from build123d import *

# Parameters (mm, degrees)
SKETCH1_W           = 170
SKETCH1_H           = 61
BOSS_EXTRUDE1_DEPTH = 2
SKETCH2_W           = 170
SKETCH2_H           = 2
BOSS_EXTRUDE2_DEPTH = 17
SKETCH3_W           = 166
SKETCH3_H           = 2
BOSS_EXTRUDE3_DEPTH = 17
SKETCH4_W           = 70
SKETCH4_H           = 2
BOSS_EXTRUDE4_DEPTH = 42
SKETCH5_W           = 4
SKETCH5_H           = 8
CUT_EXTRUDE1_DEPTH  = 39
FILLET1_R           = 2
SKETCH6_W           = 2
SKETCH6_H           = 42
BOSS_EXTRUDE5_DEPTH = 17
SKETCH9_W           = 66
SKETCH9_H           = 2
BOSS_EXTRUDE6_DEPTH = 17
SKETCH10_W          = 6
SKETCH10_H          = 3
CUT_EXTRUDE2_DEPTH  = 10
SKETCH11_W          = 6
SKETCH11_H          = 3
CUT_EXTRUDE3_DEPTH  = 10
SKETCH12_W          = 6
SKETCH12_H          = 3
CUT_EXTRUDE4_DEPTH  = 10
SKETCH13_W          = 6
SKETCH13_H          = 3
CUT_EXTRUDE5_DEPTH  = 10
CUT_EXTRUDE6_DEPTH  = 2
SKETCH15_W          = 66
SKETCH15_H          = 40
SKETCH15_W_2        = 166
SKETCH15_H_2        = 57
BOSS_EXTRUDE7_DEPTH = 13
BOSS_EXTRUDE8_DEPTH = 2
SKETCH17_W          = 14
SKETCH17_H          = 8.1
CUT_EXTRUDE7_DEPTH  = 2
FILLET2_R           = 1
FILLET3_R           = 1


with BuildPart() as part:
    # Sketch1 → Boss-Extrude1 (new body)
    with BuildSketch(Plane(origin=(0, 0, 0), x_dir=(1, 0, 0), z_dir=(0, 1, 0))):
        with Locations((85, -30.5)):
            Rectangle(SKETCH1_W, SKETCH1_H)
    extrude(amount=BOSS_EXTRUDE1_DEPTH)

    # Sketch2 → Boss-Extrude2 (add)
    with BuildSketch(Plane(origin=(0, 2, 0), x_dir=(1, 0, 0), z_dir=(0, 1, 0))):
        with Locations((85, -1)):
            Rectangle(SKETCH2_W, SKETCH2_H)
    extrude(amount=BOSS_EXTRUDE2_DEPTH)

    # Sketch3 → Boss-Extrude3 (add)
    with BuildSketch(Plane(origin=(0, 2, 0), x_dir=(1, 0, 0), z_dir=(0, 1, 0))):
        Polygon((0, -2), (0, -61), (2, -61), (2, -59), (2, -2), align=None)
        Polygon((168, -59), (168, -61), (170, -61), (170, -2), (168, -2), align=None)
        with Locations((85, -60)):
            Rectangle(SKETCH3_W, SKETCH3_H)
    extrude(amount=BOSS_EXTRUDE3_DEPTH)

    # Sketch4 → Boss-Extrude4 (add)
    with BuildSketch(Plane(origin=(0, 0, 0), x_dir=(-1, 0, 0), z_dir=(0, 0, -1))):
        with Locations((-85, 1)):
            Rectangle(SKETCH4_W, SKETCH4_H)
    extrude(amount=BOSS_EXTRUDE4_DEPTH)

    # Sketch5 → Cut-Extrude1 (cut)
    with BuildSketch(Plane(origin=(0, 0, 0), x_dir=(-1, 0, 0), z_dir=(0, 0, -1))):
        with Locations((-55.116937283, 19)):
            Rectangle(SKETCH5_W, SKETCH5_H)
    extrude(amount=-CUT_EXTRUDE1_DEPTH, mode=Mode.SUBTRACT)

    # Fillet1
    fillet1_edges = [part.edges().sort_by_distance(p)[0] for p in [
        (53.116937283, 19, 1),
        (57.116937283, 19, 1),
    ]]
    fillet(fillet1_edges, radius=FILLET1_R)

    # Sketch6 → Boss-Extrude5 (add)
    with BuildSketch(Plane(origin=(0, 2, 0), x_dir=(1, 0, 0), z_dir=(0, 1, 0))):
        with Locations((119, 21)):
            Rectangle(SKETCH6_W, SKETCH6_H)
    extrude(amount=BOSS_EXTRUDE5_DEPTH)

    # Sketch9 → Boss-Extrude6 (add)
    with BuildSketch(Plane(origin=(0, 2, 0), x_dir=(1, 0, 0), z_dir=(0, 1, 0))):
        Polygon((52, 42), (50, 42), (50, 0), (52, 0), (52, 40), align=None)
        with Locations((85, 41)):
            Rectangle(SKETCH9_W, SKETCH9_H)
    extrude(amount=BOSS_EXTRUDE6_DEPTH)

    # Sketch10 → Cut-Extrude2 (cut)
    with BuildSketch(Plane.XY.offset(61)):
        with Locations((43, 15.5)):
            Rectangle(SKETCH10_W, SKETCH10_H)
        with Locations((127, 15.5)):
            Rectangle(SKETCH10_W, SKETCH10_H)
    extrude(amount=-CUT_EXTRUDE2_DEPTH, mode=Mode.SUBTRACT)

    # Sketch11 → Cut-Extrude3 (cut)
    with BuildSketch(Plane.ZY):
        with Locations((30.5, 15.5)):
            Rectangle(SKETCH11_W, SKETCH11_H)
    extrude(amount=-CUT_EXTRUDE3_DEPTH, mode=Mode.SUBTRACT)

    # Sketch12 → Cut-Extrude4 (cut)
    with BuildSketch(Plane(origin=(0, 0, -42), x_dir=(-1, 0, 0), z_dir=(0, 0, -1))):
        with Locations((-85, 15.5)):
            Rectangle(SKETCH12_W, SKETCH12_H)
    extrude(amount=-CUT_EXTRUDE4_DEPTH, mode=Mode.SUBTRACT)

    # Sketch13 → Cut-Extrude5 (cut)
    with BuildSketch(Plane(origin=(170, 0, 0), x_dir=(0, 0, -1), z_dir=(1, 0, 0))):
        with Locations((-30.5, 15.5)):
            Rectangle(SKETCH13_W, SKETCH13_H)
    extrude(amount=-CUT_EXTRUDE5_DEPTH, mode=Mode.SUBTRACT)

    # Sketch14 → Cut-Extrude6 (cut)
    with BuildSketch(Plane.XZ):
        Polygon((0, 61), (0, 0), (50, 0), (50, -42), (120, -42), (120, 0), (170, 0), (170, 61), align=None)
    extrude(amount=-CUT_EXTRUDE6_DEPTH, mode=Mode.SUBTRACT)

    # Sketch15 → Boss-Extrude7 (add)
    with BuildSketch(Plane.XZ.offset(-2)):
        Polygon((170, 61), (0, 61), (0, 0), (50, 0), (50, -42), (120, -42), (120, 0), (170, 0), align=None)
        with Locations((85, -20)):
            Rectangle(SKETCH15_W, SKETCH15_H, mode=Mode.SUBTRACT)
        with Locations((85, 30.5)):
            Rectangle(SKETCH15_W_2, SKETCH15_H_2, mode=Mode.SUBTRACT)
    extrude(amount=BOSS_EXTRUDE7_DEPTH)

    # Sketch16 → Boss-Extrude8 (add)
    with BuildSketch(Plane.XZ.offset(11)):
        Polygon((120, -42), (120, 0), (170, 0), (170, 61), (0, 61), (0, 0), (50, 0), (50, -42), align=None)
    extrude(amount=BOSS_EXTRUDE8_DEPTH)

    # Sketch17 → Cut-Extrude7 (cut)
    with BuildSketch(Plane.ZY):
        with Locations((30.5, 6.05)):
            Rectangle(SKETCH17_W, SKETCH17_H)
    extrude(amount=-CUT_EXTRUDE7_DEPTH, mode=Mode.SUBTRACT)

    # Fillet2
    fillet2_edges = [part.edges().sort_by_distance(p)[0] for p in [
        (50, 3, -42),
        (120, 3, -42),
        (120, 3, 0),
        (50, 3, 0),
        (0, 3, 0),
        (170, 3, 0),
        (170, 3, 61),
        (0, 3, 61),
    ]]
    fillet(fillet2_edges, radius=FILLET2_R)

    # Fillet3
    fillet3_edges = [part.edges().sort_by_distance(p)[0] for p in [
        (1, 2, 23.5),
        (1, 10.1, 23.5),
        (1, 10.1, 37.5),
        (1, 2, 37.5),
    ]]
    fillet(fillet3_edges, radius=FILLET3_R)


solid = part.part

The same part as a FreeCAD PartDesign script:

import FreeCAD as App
import Part
import Sketcher
Q = App.Units.Quantity


def edges_at(feature, points):
    """Names of the edges that pass closest to the given points."""
    edges = feature.Shape.Edges
    near = lambda p: min(range(len(edges)), key=lambda i: edges[i].distToShape(Part.Vertex(*p))[0])
    return sorted({f"Edge{near(p) + 1}" for p in points})

doc = App.newDocument("Part")
body = doc.addObject("PartDesign::Body", "Body")

# Sketch on XZ plane
sketch1 = body.newObject("Sketcher::SketchObject", "Sketch")
sketch1.AttachmentSupport = (doc.getObject("XZ_Plane"), [""])
sketch1.MapMode = "FlatFace"
sketch1.addGeometry([
    Part.LineSegment(App.Vector(0, 0, 0), App.Vector(0, 61, 0)),
    Part.LineSegment(App.Vector(0, 61, 0), App.Vector(170, 61, 0)),
    Part.LineSegment(App.Vector(170, 61, 0), App.Vector(170, 0, 0)),
    Part.LineSegment(App.Vector(170, 0, 0), App.Vector(0, 0, 0)),
], False)
sketch1.addConstraint([
    Sketcher.Constraint("Coincident", 0, 2, 1, 1),
    Sketcher.Constraint("Coincident", 1, 2, 2, 1),
    Sketcher.Constraint("Coincident", 2, 2, 3, 1),
    Sketcher.Constraint("Coincident", 3, 2, 0, 1),
    Sketcher.Constraint("Vertical", 0),
    Sketcher.Constraint("Horizontal", 1),
    Sketcher.Constraint("Vertical", 2),
    Sketcher.Constraint("Horizontal", 3),
    Sketcher.Constraint("Coincident", 3, 2, -1, 1),
    Sketcher.Constraint("DistanceX", 1, 1, 1, 2, Q("170 mm")),
    Sketcher.Constraint("DistanceY", 0, 1, 0, 2, Q("61 mm")),
])
pad1 = body.newObject("PartDesign::Pad", "Pad")
pad1.Profile = sketch1
pad1.Length = 2
pad1.Reversed = True

# Sketch on XZ plane
sketch2 = body.newObject("Sketcher::SketchObject", "Sketch001")
sketch2.AttachmentSupport = (doc.getObject("XZ_Plane"), [""])
sketch2.MapMode = "FlatFace"
sketch2.AttachmentOffset = App.Placement(App.Vector(0, 0, -2), App.Rotation())
sketch2.addGeometry([
    Part.LineSegment(App.Vector(0, 0, 0), App.Vector(0, 2, 0)),
    Part.LineSegment(App.Vector(0, 2, 0), App.Vector(170, 2, 0)),
    Part.LineSegment(App.Vector(170, 2, 0), App.Vector(170, 0, 0)),
    Part.LineSegment(App.Vector(170, 0, 0), App.Vector(0, 0, 0)),
], False)
sketch2.addConstraint([
    Sketcher.Constraint("Coincident", 0, 2, 1, 1),
    Sketcher.Constraint("Coincident", 1, 2, 2, 1),
    Sketcher.Constraint("Coincident", 2, 2, 3, 1),
    Sketcher.Constraint("Coincident", 3, 2, 0, 1),
    Sketcher.Constraint("Vertical", 0),
    Sketcher.Constraint("Horizontal", 1),
    Sketcher.Constraint("Vertical", 2),
    Sketcher.Constraint("Horizontal", 3),
    Sketcher.Constraint("Coincident", 3, 2, -1, 1),
    Sketcher.Constraint("DistanceX", 1, 1, 1, 2, Q("170 mm")),
    Sketcher.Constraint("DistanceY", 0, 1, 0, 2, Q("2 mm")),
])
pad2 = body.newObject("PartDesign::Pad", "Pad001")
pad2.Profile = sketch2
pad2.Length = 17
pad2.Reversed = True

# Sketch on XZ plane
sketch3 = body.newObject("Sketcher::SketchObject", "Sketch002")
sketch3.AttachmentSupport = (doc.getObject("XZ_Plane"), [""])
sketch3.MapMode = "FlatFace"
sketch3.AttachmentOffset = App.Placement(App.Vector(0, 0, -2), App.Rotation())
sketch3.addGeometry([
    Part.LineSegment(App.Vector(0, 2, 0), App.Vector(0, 61, 0)),  # 0
    Part.LineSegment(App.Vector(0, 61, 0), App.Vector(170, 61, 0)),  # 1
    Part.LineSegment(App.Vector(170, 61, 0), App.Vector(170, 2, 0)),  # 2
    Part.LineSegment(App.Vector(170, 2, 0), App.Vector(168, 2, 0)),  # 3
    Part.LineSegment(App.Vector(168, 2, 0), App.Vector(168, 59, 0)),  # 4
    Part.LineSegment(App.Vector(168, 59, 0), App.Vector(2, 59, 0)),  # 5
    Part.LineSegment(App.Vector(2, 59, 0), App.Vector(2, 2, 0)),  # 6
    Part.LineSegment(App.Vector(2, 2, 0), App.Vector(0, 2, 0)),  # 7
], False)
sketch3.addConstraint([
    Sketcher.Constraint("Coincident", 0, 2, 1, 1),
    Sketcher.Constraint("Coincident", 1, 2, 2, 1),
    Sketcher.Constraint("Coincident", 2, 2, 3, 1),
    Sketcher.Constraint("Coincident", 3, 2, 4, 1),
    Sketcher.Constraint("Coincident", 4, 2, 5, 1),
    Sketcher.Constraint("Coincident", 5, 2, 6, 1),
    Sketcher.Constraint("Coincident", 6, 2, 7, 1),
    Sketcher.Constraint("Coincident", 7, 2, 0, 1),
    Sketcher.Constraint("Vertical", 0),
    Sketcher.Constraint("Horizontal", 1),
    Sketcher.Constraint("Vertical", 2),
    Sketcher.Constraint("Horizontal", 3),
    Sketcher.Constraint("Vertical", 4),
    Sketcher.Constraint("Horizontal", 5),
    Sketcher.Constraint("Vertical", 6),
    Sketcher.Constraint("Horizontal", 7),
    Sketcher.Constraint("PointOnObject", 0, 2, -2),
    Sketcher.Constraint("Horizontal", 3, 2, 6, 2),
    Sketcher.Constraint("Equal", 3, 7),
    Sketcher.Constraint("DistanceX", 1, 1, 1, 2, Q("170 mm")),
    Sketcher.Constraint("DistanceX", 3, 2, 3, 1, Q("2 mm")),
    Sketcher.Constraint("DistanceY", 0, 1, 0, 2, Q("59 mm")),
    Sketcher.Constraint("DistanceY", 4, 1, 4, 2, Q("57 mm")),
    Sketcher.Constraint("DistanceY", -1, 1, 0, 2, Q("61 mm")),
])
pad3 = body.newObject("PartDesign::Pad", "Pad002")
pad3.Profile = sketch3
pad3.Length = 17
pad3.Reversed = True

# Sketch on XY plane
sketch4 = body.newObject("Sketcher::SketchObject", "Sketch003")
sketch4.AttachmentSupport = (doc.getObject("XY_Plane"), [""])
sketch4.MapMode = "FlatFace"
sketch4.addGeometry([
    Part.LineSegment(App.Vector(120, 2, 0), App.Vector(120, 0, 0)),
    Part.LineSegment(App.Vector(120, 0, 0), App.Vector(50, 0, 0)),
    Part.LineSegment(App.Vector(50, 0, 0), App.Vector(50, 2, 0)),
    Part.LineSegment(App.Vector(50, 2, 0), App.Vector(120, 2, 0)),
], False)
sketch4.addConstraint([
    Sketcher.Constraint("Coincident", 0, 2, 1, 1),
    Sketcher.Constraint("Coincident", 1, 2, 2, 1),
    Sketcher.Constraint("Coincident", 2, 2, 3, 1),
    Sketcher.Constraint("Coincident", 3, 2, 0, 1),
    Sketcher.Constraint("Vertical", 0),
    Sketcher.Constraint("Horizontal", 1),
    Sketcher.Constraint("Vertical", 2),
    Sketcher.Constraint("Horizontal", 3),
    Sketcher.Constraint("PointOnObject", 0, 2, -1),
    Sketcher.Constraint("DistanceX", 1, 2, 1, 1, Q("70 mm")),
    Sketcher.Constraint("DistanceY", 0, 2, 0, 1, Q("2 mm")),
    Sketcher.Constraint("DistanceX", -1, 1, 0, 2, Q("120 mm")),
])
pad4 = body.newObject("PartDesign::Pad", "Pad003")
pad4.Profile = sketch4
pad4.Length = 42
pad4.Reversed = True

# Sketch on XY plane
sketch5 = body.newObject("Sketcher::SketchObject", "Sketch004")
sketch5.AttachmentSupport = (doc.getObject("XY_Plane"), [""])
sketch5.MapMode = "FlatFace"
sketch5.addGeometry([
    Part.LineSegment(App.Vector(57.116937, 23, 0), App.Vector(57.116937, 15, 0)),
    Part.LineSegment(App.Vector(57.116937, 15, 0), App.Vector(53.116937, 15, 0)),
    Part.LineSegment(App.Vector(53.116937, 15, 0), App.Vector(53.116937, 23, 0)),
    Part.LineSegment(App.Vector(53.116937, 23, 0), App.Vector(57.116937, 23, 0)),
], False)
sketch5.addConstraint([
    Sketcher.Constraint("Coincident", 0, 2, 1, 1),
    Sketcher.Constraint("Coincident", 1, 2, 2, 1),
    Sketcher.Constraint("Coincident", 2, 2, 3, 1),
    Sketcher.Constraint("Coincident", 3, 2, 0, 1),
    Sketcher.Constraint("Vertical", 0),
    Sketcher.Constraint("Horizontal", 1),
    Sketcher.Constraint("Vertical", 2),
    Sketcher.Constraint("Horizontal", 3),
    Sketcher.Constraint("DistanceX", 1, 2, 1, 1, Q("4 mm")),
    Sketcher.Constraint("DistanceY", 0, 2, 0, 1, Q("8 mm")),
    Sketcher.Constraint("DistanceY", -1, 1, 0, 2, Q("15 mm")),
    Sketcher.Constraint("DistanceX", -1, 1, 0, 2, Q("57.116937 mm")),
])
pocket1 = body.newObject("PartDesign::Pocket", "Pocket")
pocket1.Profile = sketch5
pocket1.Length = 39
pocket1.Reversed = True
doc.recompute()

fillet = body.newObject("PartDesign::Fillet", "Fillet")
fillet.Base = (pocket1, edges_at(pocket1, [(53.117, 19, 1), (57.117, 19, 1)]))
fillet.Radius = 2

# Sketch on XZ plane
sketch6 = body.newObject("Sketcher::SketchObject", "Sketch005")
sketch6.AttachmentSupport = (doc.getObject("XZ_Plane"), [""])
sketch6.MapMode = "FlatFace"
sketch6.AttachmentOffset = App.Placement(App.Vector(0, 0, -2), App.Rotation())
sketch6.addGeometry([
    Part.LineSegment(App.Vector(118, -42, 0), App.Vector(118, 0, 0)),
    Part.LineSegment(App.Vector(118, 0, 0), App.Vector(120, 0, 0)),
    Part.LineSegment(App.Vector(120, 0, 0), App.Vector(120, -42, 0)),
    Part.LineSegment(App.Vector(120, -42, 0), App.Vector(118, -42, 0)),
], False)
sketch6.addConstraint([
    Sketcher.Constraint("Coincident", 0, 2, 1, 1),
    Sketcher.Constraint("Coincident", 1, 2, 2, 1),
    Sketcher.Constraint("Coincident", 2, 2, 3, 1),
    Sketcher.Constraint("Coincident", 3, 2, 0, 1),
    Sketcher.Constraint("Vertical", 0),
    Sketcher.Constraint("Horizontal", 1),
    Sketcher.Constraint("Vertical", 2),
    Sketcher.Constraint("Horizontal", 3),
    Sketcher.Constraint("PointOnObject", 0, 2, -1),
    Sketcher.Constraint("DistanceX", 1, 1, 1, 2, Q("2 mm")),
    Sketcher.Constraint("DistanceY", 0, 1, 0, 2, Q("42 mm")),
    Sketcher.Constraint("DistanceX", -1, 1, 0, 2, Q("118 mm")),
])
pad5 = body.newObject("PartDesign::Pad", "Pad004")
pad5.Profile = sketch6
pad5.Length = 17
pad5.Reversed = True

# Sketch on XZ plane
sketch7 = body.newObject("Sketcher::SketchObject", "Sketch006")
sketch7.AttachmentSupport = (doc.getObject("XZ_Plane"), [""])
sketch7.MapMode = "FlatFace"
sketch7.AttachmentOffset = App.Placement(App.Vector(0, 0, -2), App.Rotation())
sketch7.addGeometry([
    Part.LineSegment(App.Vector(50, -42, 0), App.Vector(50, 0, 0)),  # 0
    Part.LineSegment(App.Vector(50, 0, 0), App.Vector(52, 0, 0)),  # 1
    Part.LineSegment(App.Vector(52, 0, 0), App.Vector(52, -40, 0)),  # 2
    Part.LineSegment(App.Vector(52, -40, 0), App.Vector(118, -40, 0)),  # 3
    Part.LineSegment(App.Vector(118, -40, 0), App.Vector(118, -42, 0)),  # 4
    Part.LineSegment(App.Vector(118, -42, 0), App.Vector(50, -42, 0)),  # 5
], False)
sketch7.addConstraint([
    Sketcher.Constraint("Coincident", 0, 2, 1, 1),
    Sketcher.Constraint("Coincident", 1, 2, 2, 1),
    Sketcher.Constraint("Coincident", 2, 2, 3, 1),
    Sketcher.Constraint("Coincident", 3, 2, 4, 1),
    Sketcher.Constraint("Coincident", 4, 2, 5, 1),
    Sketcher.Constraint("Coincident", 5, 2, 0, 1),
    Sketcher.Constraint("Vertical", 0),
    Sketcher.Constraint("Horizontal", 1),
    Sketcher.Constraint("Vertical", 2),
    Sketcher.Constraint("Horizontal", 3),
    Sketcher.Constraint("Vertical", 4),
    Sketcher.Constraint("Horizontal", 5),
    Sketcher.Constraint("PointOnObject", 0, 2, -1),
    Sketcher.Constraint("Equal", 1, 4),
    Sketcher.Constraint("DistanceX", 1, 1, 1, 2, Q("2 mm")),
    Sketcher.Constraint("DistanceX", 3, 1, 3, 2, Q("66 mm")),
    Sketcher.Constraint("DistanceY", 0, 1, 0, 2, Q("42 mm")),
    Sketcher.Constraint("DistanceX", -1, 1, 0, 2, Q("50 mm")),
])
pad6 = body.newObject("PartDesign::Pad", "Pad005")
pad6.Profile = sketch7
pad6.Length = 17
pad6.Reversed = True

# Sketch on XY plane
sketch8 = body.newObject("Sketcher::SketchObject", "Sketch007")
sketch8.AttachmentSupport = (doc.getObject("XY_Plane"), [""])
sketch8.MapMode = "FlatFace"
sketch8.AttachmentOffset = App.Placement(App.Vector(0, 0, 61), App.Rotation())
sketch8.addGeometry([
    Part.LineSegment(App.Vector(40, 17, 0), App.Vector(40, 14, 0)),  # 0
    Part.LineSegment(App.Vector(40, 14, 0), App.Vector(46, 14, 0)),  # 1
    Part.LineSegment(App.Vector(46, 14, 0), App.Vector(46, 17, 0)),  # 2
    Part.LineSegment(App.Vector(46, 17, 0), App.Vector(40, 17, 0)),  # 3
    Part.LineSegment(App.Vector(124, 17, 0), App.Vector(124, 14, 0)),  # 4
    Part.LineSegment(App.Vector(124, 14, 0), App.Vector(130, 14, 0)),  # 5
    Part.LineSegment(App.Vector(130, 14, 0), App.Vector(130, 17, 0)),  # 6
    Part.LineSegment(App.Vector(130, 17, 0), App.Vector(124, 17, 0)),  # 7
], False)
sketch8.addConstraint([
    Sketcher.Constraint("Coincident", 0, 2, 1, 1),
    Sketcher.Constraint("Coincident", 1, 2, 2, 1),
    Sketcher.Constraint("Coincident", 2, 2, 3, 1),
    Sketcher.Constraint("Coincident", 3, 2, 0, 1),
    Sketcher.Constraint("Coincident", 4, 2, 5, 1),
    Sketcher.Constraint("Coincident", 5, 2, 6, 1),
    Sketcher.Constraint("Coincident", 6, 2, 7, 1),
    Sketcher.Constraint("Coincident", 7, 2, 4, 1),
    Sketcher.Constraint("Vertical", 0),
    Sketcher.Constraint("Horizontal", 1),
    Sketcher.Constraint("Vertical", 2),
    Sketcher.Constraint("Horizontal", 3),
    Sketcher.Constraint("Vertical", 4),
    Sketcher.Constraint("Horizontal", 5),
    Sketcher.Constraint("Vertical", 6),
    Sketcher.Constraint("Horizontal", 7),
    Sketcher.Constraint("Horizontal", 1, 2, 4, 2),
    Sketcher.Constraint("Horizontal", 3, 2, 6, 2),
    Sketcher.Constraint("Equal", 3, 5),
    Sketcher.Constraint("DistanceX", 1, 1, 1, 2, Q("6 mm")),
    Sketcher.Constraint("DistanceY", 0, 2, 0, 1, Q("3 mm")),
    Sketcher.Constraint("DistanceX", -1, 1, 0, 2, Q("40 mm")),
    Sketcher.Constraint("DistanceY", -1, 1, 0, 2, Q("14 mm")),
    Sketcher.Constraint("DistanceX", -1, 1, 4, 2, Q("124 mm")),
])
pocket2 = body.newObject("PartDesign::Pocket", "Pocket001")
pocket2.Profile = sketch8
pocket2.Length = 10

# Sketch on YZ plane
sketch9 = body.newObject("Sketcher::SketchObject", "Sketch008")
sketch9.AttachmentSupport = (doc.getObject("YZ_Plane"), [""])
sketch9.MapMode = "FlatFace"
sketch9.addGeometry([
    Part.LineSegment(App.Vector(17, 27.5, 0), App.Vector(14, 27.5, 0)),
    Part.LineSegment(App.Vector(14, 27.5, 0), App.Vector(14, 33.5, 0)),
    Part.LineSegment(App.Vector(14, 33.5, 0), App.Vector(17, 33.5, 0)),
    Part.LineSegment(App.Vector(17, 33.5, 0), App.Vector(17, 27.5, 0)),
], False)
sketch9.addConstraint([
    Sketcher.Constraint("Coincident", 0, 2, 1, 1),
    Sketcher.Constraint("Coincident", 1, 2, 2, 1),
    Sketcher.Constraint("Coincident", 2, 2, 3, 1),
    Sketcher.Constraint("Coincident", 3, 2, 0, 1),
    Sketcher.Constraint("Horizontal", 0),
    Sketcher.Constraint("Vertical", 1),
    Sketcher.Constraint("Horizontal", 2),
    Sketcher.Constraint("Vertical", 3),
    Sketcher.Constraint("DistanceX", 0, 2, 0, 1, Q("3 mm")),
    Sketcher.Constraint("DistanceY", 1, 1, 1, 2, Q("6 mm")),
    Sketcher.Constraint("DistanceX", -1, 1, 0, 2, Q("14 mm")),
    Sketcher.Constraint("DistanceY", -1, 1, 0, 2, Q("27.5 mm")),
])
pocket3 = body.newObject("PartDesign::Pocket", "Pocket002")
pocket3.Profile = sketch9
pocket3.Length = 10
pocket3.Reversed = True

# Sketch on XY plane
sketch10 = body.newObject("Sketcher::SketchObject", "Sketch009")
sketch10.AttachmentSupport = (doc.getObject("XY_Plane"), [""])
sketch10.MapMode = "FlatFace"
sketch10.AttachmentOffset = App.Placement(App.Vector(0, 0, -42), App.Rotation())
sketch10.addGeometry([
    Part.LineSegment(App.Vector(88, 17, 0), App.Vector(88, 14, 0)),
    Part.LineSegment(App.Vector(88, 14, 0), App.Vector(82, 14, 0)),
    Part.LineSegment(App.Vector(82, 14, 0), App.Vector(82, 17, 0)),
    Part.LineSegment(App.Vector(82, 17, 0), App.Vector(88, 17, 0)),
], False)
sketch10.addConstraint([
    Sketcher.Constraint("Coincident", 0, 2, 1, 1),
    Sketcher.Constraint("Coincident", 1, 2, 2, 1),
    Sketcher.Constraint("Coincident", 2, 2, 3, 1),
    Sketcher.Constraint("Coincident", 3, 2, 0, 1),
    Sketcher.Constraint("Vertical", 0),
    Sketcher.Constraint("Horizontal", 1),
    Sketcher.Constraint("Vertical", 2),
    Sketcher.Constraint("Horizontal", 3),
    Sketcher.Constraint("DistanceX", 1, 2, 1, 1, Q("6 mm")),
    Sketcher.Constraint("DistanceY", 0, 2, 0, 1, Q("3 mm")),
    Sketcher.Constraint("DistanceX", -1, 1, 0, 2, Q("88 mm")),
    Sketcher.Constraint("DistanceY", -1, 1, 0, 2, Q("14 mm")),
])
pocket4 = body.newObject("PartDesign::Pocket", "Pocket003")
pocket4.Profile = sketch10
pocket4.Length = 10
pocket4.Reversed = True

# Sketch on YZ plane
sketch11 = body.newObject("Sketcher::SketchObject", "Sketch010")
sketch11.AttachmentSupport = (doc.getObject("YZ_Plane"), [""])
sketch11.MapMode = "FlatFace"
sketch11.AttachmentOffset = App.Placement(App.Vector(0, 0, 170), App.Rotation())
sketch11.addGeometry([
    Part.LineSegment(App.Vector(17, 33.5, 0), App.Vector(14, 33.5, 0)),
    Part.LineSegment(App.Vector(14, 33.5, 0), App.Vector(14, 27.5, 0)),
    Part.LineSegment(App.Vector(14, 27.5, 0), App.Vector(17, 27.5, 0)),
    Part.LineSegment(App.Vector(17, 27.5, 0), App.Vector(17, 33.5, 0)),
], False)
sketch11.addConstraint([
    Sketcher.Constraint("Coincident", 0, 2, 1, 1),
    Sketcher.Constraint("Coincident", 1, 2, 2, 1),
    Sketcher.Constraint("Coincident", 2, 2, 3, 1),
    Sketcher.Constraint("Coincident", 3, 2, 0, 1),
    Sketcher.Constraint("Horizontal", 0),
    Sketcher.Constraint("Vertical", 1),
    Sketcher.Constraint("Horizontal", 2),
    Sketcher.Constraint("Vertical", 3),
    Sketcher.Constraint("DistanceX", 0, 2, 0, 1, Q("3 mm")),
    Sketcher.Constraint("DistanceY", 1, 2, 1, 1, Q("6 mm")),
    Sketcher.Constraint("DistanceX", -1, 1, 0, 2, Q("14 mm")),
    Sketcher.Constraint("DistanceY", -1, 1, 0, 2, Q("33.5 mm")),
])
pocket5 = body.newObject("PartDesign::Pocket", "Pocket004")
pocket5.Profile = sketch11
pocket5.Length = 10

# Sketch on XZ plane
sketch12 = body.newObject("Sketcher::SketchObject", "Sketch011")
sketch12.AttachmentSupport = (doc.getObject("XZ_Plane"), [""])
sketch12.MapMode = "FlatFace"
sketch12.addGeometry([
    Part.LineSegment(App.Vector(0, 61, 0), App.Vector(0, 0, 0)),  # 0
    Part.LineSegment(App.Vector(0, 0, 0), App.Vector(50, 0, 0)),  # 1
    Part.LineSegment(App.Vector(50, 0, 0), App.Vector(50, -42, 0)),  # 2
    Part.LineSegment(App.Vector(50, -42, 0), App.Vector(120, -42, 0)),  # 3
    Part.LineSegment(App.Vector(120, -42, 0), App.Vector(120, 0, 0)),  # 4
    Part.LineSegment(App.Vector(120, 0, 0), App.Vector(170, 0, 0)),  # 5
    Part.LineSegment(App.Vector(170, 0, 0), App.Vector(170, 61, 0)),  # 6
    Part.LineSegment(App.Vector(170, 61, 0), App.Vector(0, 61, 0)),  # 7
], False)
sketch12.addConstraint([
    Sketcher.Constraint("Coincident", 0, 2, 1, 1),
    Sketcher.Constraint("Coincident", 1, 2, 2, 1),
    Sketcher.Constraint("Coincident", 2, 2, 3, 1),
    Sketcher.Constraint("Coincident", 3, 2, 4, 1),
    Sketcher.Constraint("Coincident", 4, 2, 5, 1),
    Sketcher.Constraint("Coincident", 5, 2, 6, 1),
    Sketcher.Constraint("Coincident", 6, 2, 7, 1),
    Sketcher.Constraint("Coincident", 7, 2, 0, 1),
    Sketcher.Constraint("Vertical", 0),
    Sketcher.Constraint("Horizontal", 1),
    Sketcher.Constraint("Vertical", 2),
    Sketcher.Constraint("Horizontal", 3),
    Sketcher.Constraint("Vertical", 4),
    Sketcher.Constraint("Horizontal", 5),
    Sketcher.Constraint("Vertical", 6),
    Sketcher.Constraint("Horizontal", 7),
    Sketcher.Constraint("Coincident", 0, 2, -1, 1),
    Sketcher.Constraint("PointOnObject", 4, 2, -1),
    Sketcher.Constraint("Equal", 1, 5),
    Sketcher.Constraint("DistanceX", 1, 1, 1, 2, Q("50 mm")),
    Sketcher.Constraint("DistanceX", 3, 1, 3, 2, Q("70 mm")),
    Sketcher.Constraint("DistanceY", 0, 2, 0, 1, Q("61 mm")),
    Sketcher.Constraint("DistanceY", 2, 2, 2, 1, Q("42 mm")),
])
pocket6 = body.newObject("PartDesign::Pocket", "Pocket005")
pocket6.Profile = sketch12
pocket6.Length = 2

# Sketch on XZ plane
sketch13 = body.newObject("Sketcher::SketchObject", "Sketch012")
sketch13.AttachmentSupport = (doc.getObject("XZ_Plane"), [""])
sketch13.MapMode = "FlatFace"
sketch13.AttachmentOffset = App.Placement(App.Vector(0, 0, -2), App.Rotation())
sketch13.addGeometry([
    Part.LineSegment(App.Vector(170, 61, 0), App.Vector(0, 61, 0)),  # 0
    Part.LineSegment(App.Vector(0, 61, 0), App.Vector(0, 0, 0)),  # 1
    Part.LineSegment(App.Vector(0, 0, 0), App.Vector(50, 0, 0)),  # 2
    Part.LineSegment(App.Vector(50, 0, 0), App.Vector(50, -42, 0)),  # 3
    Part.LineSegment(App.Vector(50, -42, 0), App.Vector(120, -42, 0)),  # 4
    Part.LineSegment(App.Vector(120, -42, 0), App.Vector(120, 0, 0)),  # 5
    Part.LineSegment(App.Vector(120, 0, 0), App.Vector(170, 0, 0)),  # 6
    Part.LineSegment(App.Vector(170, 0, 0), App.Vector(170, 61, 0)),  # 7
    Part.LineSegment(App.Vector(118, -40, 0), App.Vector(52, -40, 0)),  # 8
    Part.LineSegment(App.Vector(52, -40, 0), App.Vector(52, 0, 0)),  # 9
    Part.LineSegment(App.Vector(52, 0, 0), App.Vector(118, 0, 0)),  # 10
    Part.LineSegment(App.Vector(118, 0, 0), App.Vector(118, -40, 0)),  # 11
    Part.LineSegment(App.Vector(168, 2, 0), App.Vector(2, 2, 0)),  # 12
    Part.LineSegment(App.Vector(2, 2, 0), App.Vector(2, 59, 0)),  # 13
    Part.LineSegment(App.Vector(2, 59, 0), App.Vector(168, 59, 0)),  # 14
    Part.LineSegment(App.Vector(168, 59, 0), App.Vector(168, 2, 0)),  # 15
], False)
sketch13.addConstraint([
    Sketcher.Constraint("Coincident", 0, 2, 1, 1),
    Sketcher.Constraint("Coincident", 1, 2, 2, 1),
    Sketcher.Constraint("Coincident", 2, 2, 3, 1),
    Sketcher.Constraint("Coincident", 3, 2, 4, 1),
    Sketcher.Constraint("Coincident", 4, 2, 5, 1),
    Sketcher.Constraint("Coincident", 5, 2, 6, 1),
    Sketcher.Constraint("Coincident", 6, 2, 7, 1),
    Sketcher.Constraint("Coincident", 7, 2, 0, 1),
    Sketcher.Constraint("Coincident", 8, 2, 9, 1),
    Sketcher.Constraint("Coincident", 9, 2, 10, 1),
    Sketcher.Constraint("Coincident", 10, 2, 11, 1),
    Sketcher.Constraint("Coincident", 11, 2, 8, 1),
    Sketcher.Constraint("Coincident", 12, 2, 13, 1),
    Sketcher.Constraint("Coincident", 13, 2, 14, 1),
    Sketcher.Constraint("Coincident", 14, 2, 15, 1),
    Sketcher.Constraint("Coincident", 15, 2, 12, 1),
    Sketcher.Constraint("Horizontal", 0),
    Sketcher.Constraint("Vertical", 1),
    Sketcher.Constraint("Horizontal", 2),
    Sketcher.Constraint("Vertical", 3),
    Sketcher.Constraint("Horizontal", 4),
    Sketcher.Constraint("Vertical", 5),
    Sketcher.Constraint("Horizontal", 6),
    Sketcher.Constraint("Vertical", 7),
    Sketcher.Constraint("Horizontal", 8),
    Sketcher.Constraint("Vertical", 9),
    Sketcher.Constraint("Horizontal", 10),
    Sketcher.Constraint("Vertical", 11),
    Sketcher.Constraint("Horizontal", 12),
    Sketcher.Constraint("Vertical", 13),
    Sketcher.Constraint("Horizontal", 14),
    Sketcher.Constraint("Vertical", 15),
    Sketcher.Constraint("Coincident", 1, 2, -1, 1),
    Sketcher.Constraint("PointOnObject", 5, 2, -1),
    Sketcher.Constraint("PointOnObject", 9, 2, -1),
    Sketcher.Constraint("Equal", 2, 6),
    Sketcher.Constraint("DistanceX", 0, 2, 0, 1, Q("170 mm")),
    Sketcher.Constraint("DistanceX", 2, 1, 2, 2, Q("50 mm")),
    Sketcher.Constraint("DistanceX", 8, 2, 8, 1, Q("66 mm")),
    Sketcher.Constraint("DistanceX", 12, 2, 12, 1, Q("166 mm")),
    Sketcher.Constraint("DistanceY", 1, 2, 1, 1, Q("61 mm")),
    Sketcher.Constraint("DistanceY", 3, 2, 3, 1, Q("42 mm")),
    Sketcher.Constraint("DistanceY", 9, 1, 9, 2, Q("40 mm")),
    Sketcher.Constraint("DistanceY", 13, 1, 13, 2, Q("57 mm")),
    Sketcher.Constraint("DistanceX", -1, 1, 8, 2, Q("52 mm")),
    Sketcher.Constraint("DistanceX", -1, 1, 12, 2, Q("2 mm")),
    Sketcher.Constraint("DistanceY", -1, 1, 12, 2, Q("2 mm")),
])
pad7 = body.newObject("PartDesign::Pad", "Pad006")
pad7.Profile = sketch13
pad7.Length = 13

# Sketch on XZ plane
sketch14 = body.newObject("Sketcher::SketchObject", "Sketch013")
sketch14.AttachmentSupport = (doc.getObject("XZ_Plane"), [""])
sketch14.MapMode = "FlatFace"
sketch14.AttachmentOffset = App.Placement(App.Vector(0, 0, 11), App.Rotation())
sketch14.addGeometry([
    Part.LineSegment(App.Vector(120, -42, 0), App.Vector(120, 0, 0)),  # 0
    Part.LineSegment(App.Vector(120, 0, 0), App.Vector(170, 0, 0)),  # 1
    Part.LineSegment(App.Vector(170, 0, 0), App.Vector(170, 61, 0)),  # 2
    Part.LineSegment(App.Vector(170, 61, 0), App.Vector(0, 61, 0)),  # 3
    Part.LineSegment(App.Vector(0, 61, 0), App.Vector(0, 0, 0)),  # 4
    Part.LineSegment(App.Vector(0, 0, 0), App.Vector(50, 0, 0)),  # 5
    Part.LineSegment(App.Vector(50, 0, 0), App.Vector(50, -42, 0)),  # 6
    Part.LineSegment(App.Vector(50, -42, 0), App.Vector(120, -42, 0)),  # 7
], False)
sketch14.addConstraint([
    Sketcher.Constraint("Coincident", 0, 2, 1, 1),
    Sketcher.Constraint("Coincident", 1, 2, 2, 1),
    Sketcher.Constraint("Coincident", 2, 2, 3, 1),
    Sketcher.Constraint("Coincident", 3, 2, 4, 1),
    Sketcher.Constraint("Coincident", 4, 2, 5, 1),
    Sketcher.Constraint("Coincident", 5, 2, 6, 1),
    Sketcher.Constraint("Coincident", 6, 2, 7, 1),
    Sketcher.Constraint("Coincident", 7, 2, 0, 1),
    Sketcher.Constraint("Vertical", 0),
    Sketcher.Constraint("Horizontal", 1),
    Sketcher.Constraint("Vertical", 2),
    Sketcher.Constraint("Horizontal", 3),
    Sketcher.Constraint("Vertical", 4),
    Sketcher.Constraint("Horizontal", 5),
    Sketcher.Constraint("Vertical", 6),
    Sketcher.Constraint("Horizontal", 7),
    Sketcher.Constraint("Coincident", 4, 2, -1, 1),
    Sketcher.Constraint("PointOnObject", 0, 2, -1),
    Sketcher.Constraint("Equal", 1, 5),
    Sketcher.Constraint("DistanceX", 1, 1, 1, 2, Q("50 mm")),
    Sketcher.Constraint("DistanceX", 3, 2, 3, 1, Q("170 mm")),
    Sketcher.Constraint("DistanceY", 0, 1, 0, 2, Q("42 mm")),
    Sketcher.Constraint("DistanceY", 2, 1, 2, 2, Q("61 mm")),
])
pad8 = body.newObject("PartDesign::Pad", "Pad007")
pad8.Profile = sketch14
pad8.Length = 2

# Sketch on YZ plane
sketch15 = body.newObject("Sketcher::SketchObject", "Sketch014")
sketch15.AttachmentSupport = (doc.getObject("YZ_Plane"), [""])
sketch15.MapMode = "FlatFace"
sketch15.addGeometry([
    Part.LineSegment(App.Vector(10.1, 23.5, 0), App.Vector(2, 23.5, 0)),
    Part.LineSegment(App.Vector(2, 23.5, 0), App.Vector(2, 37.5, 0)),
    Part.LineSegment(App.Vector(2, 37.5, 0), App.Vector(10.1, 37.5, 0)),
    Part.LineSegment(App.Vector(10.1, 37.5, 0), App.Vector(10.1, 23.5, 0)),
], False)
sketch15.addConstraint([
    Sketcher.Constraint("Coincident", 0, 2, 1, 1),
    Sketcher.Constraint("Coincident", 1, 2, 2, 1),
    Sketcher.Constraint("Coincident", 2, 2, 3, 1),
    Sketcher.Constraint("Coincident", 3, 2, 0, 1),
    Sketcher.Constraint("Horizontal", 0),
    Sketcher.Constraint("Vertical", 1),
    Sketcher.Constraint("Horizontal", 2),
    Sketcher.Constraint("Vertical", 3),
    Sketcher.Constraint("DistanceY", 1, 1, 1, 2, Q("14 mm")),
    Sketcher.Constraint("DistanceX", 0, 2, 0, 1, Q("8.1 mm")),
    Sketcher.Constraint("DistanceX", -1, 1, 0, 2, Q("2 mm")),
    Sketcher.Constraint("DistanceY", -1, 1, 0, 2, Q("23.5 mm")),
])
pocket7 = body.newObject("PartDesign::Pocket", "Pocket006")
pocket7.Profile = sketch15
pocket7.Length = 2
pocket7.Reversed = True
doc.recompute()

fillet2 = body.newObject("PartDesign::Fillet", "Fillet001")
fillet2.Base = (pocket7, edges_at(pocket7, [
    (50, 3, -42),
    (120, 3, -42),
    (120, 3, 0),
    (50, 3, 0),
    (0, 3, 0),
    (170, 3, 0),
    (170, 3, 61),
    (0, 3, 61),
]))
fillet2.Radius = 1
doc.recompute()

fillet3 = body.newObject("PartDesign::Fillet", "Fillet002")
fillet3.Base = (fillet2, edges_at(fillet2, [
    (1, 2, 23.5),
    (1, 10.1, 23.5),
    (1, 10.1, 37.5),
    (1, 2, 37.5),
]))
fillet3.Radius = 1

doc.recompute()
